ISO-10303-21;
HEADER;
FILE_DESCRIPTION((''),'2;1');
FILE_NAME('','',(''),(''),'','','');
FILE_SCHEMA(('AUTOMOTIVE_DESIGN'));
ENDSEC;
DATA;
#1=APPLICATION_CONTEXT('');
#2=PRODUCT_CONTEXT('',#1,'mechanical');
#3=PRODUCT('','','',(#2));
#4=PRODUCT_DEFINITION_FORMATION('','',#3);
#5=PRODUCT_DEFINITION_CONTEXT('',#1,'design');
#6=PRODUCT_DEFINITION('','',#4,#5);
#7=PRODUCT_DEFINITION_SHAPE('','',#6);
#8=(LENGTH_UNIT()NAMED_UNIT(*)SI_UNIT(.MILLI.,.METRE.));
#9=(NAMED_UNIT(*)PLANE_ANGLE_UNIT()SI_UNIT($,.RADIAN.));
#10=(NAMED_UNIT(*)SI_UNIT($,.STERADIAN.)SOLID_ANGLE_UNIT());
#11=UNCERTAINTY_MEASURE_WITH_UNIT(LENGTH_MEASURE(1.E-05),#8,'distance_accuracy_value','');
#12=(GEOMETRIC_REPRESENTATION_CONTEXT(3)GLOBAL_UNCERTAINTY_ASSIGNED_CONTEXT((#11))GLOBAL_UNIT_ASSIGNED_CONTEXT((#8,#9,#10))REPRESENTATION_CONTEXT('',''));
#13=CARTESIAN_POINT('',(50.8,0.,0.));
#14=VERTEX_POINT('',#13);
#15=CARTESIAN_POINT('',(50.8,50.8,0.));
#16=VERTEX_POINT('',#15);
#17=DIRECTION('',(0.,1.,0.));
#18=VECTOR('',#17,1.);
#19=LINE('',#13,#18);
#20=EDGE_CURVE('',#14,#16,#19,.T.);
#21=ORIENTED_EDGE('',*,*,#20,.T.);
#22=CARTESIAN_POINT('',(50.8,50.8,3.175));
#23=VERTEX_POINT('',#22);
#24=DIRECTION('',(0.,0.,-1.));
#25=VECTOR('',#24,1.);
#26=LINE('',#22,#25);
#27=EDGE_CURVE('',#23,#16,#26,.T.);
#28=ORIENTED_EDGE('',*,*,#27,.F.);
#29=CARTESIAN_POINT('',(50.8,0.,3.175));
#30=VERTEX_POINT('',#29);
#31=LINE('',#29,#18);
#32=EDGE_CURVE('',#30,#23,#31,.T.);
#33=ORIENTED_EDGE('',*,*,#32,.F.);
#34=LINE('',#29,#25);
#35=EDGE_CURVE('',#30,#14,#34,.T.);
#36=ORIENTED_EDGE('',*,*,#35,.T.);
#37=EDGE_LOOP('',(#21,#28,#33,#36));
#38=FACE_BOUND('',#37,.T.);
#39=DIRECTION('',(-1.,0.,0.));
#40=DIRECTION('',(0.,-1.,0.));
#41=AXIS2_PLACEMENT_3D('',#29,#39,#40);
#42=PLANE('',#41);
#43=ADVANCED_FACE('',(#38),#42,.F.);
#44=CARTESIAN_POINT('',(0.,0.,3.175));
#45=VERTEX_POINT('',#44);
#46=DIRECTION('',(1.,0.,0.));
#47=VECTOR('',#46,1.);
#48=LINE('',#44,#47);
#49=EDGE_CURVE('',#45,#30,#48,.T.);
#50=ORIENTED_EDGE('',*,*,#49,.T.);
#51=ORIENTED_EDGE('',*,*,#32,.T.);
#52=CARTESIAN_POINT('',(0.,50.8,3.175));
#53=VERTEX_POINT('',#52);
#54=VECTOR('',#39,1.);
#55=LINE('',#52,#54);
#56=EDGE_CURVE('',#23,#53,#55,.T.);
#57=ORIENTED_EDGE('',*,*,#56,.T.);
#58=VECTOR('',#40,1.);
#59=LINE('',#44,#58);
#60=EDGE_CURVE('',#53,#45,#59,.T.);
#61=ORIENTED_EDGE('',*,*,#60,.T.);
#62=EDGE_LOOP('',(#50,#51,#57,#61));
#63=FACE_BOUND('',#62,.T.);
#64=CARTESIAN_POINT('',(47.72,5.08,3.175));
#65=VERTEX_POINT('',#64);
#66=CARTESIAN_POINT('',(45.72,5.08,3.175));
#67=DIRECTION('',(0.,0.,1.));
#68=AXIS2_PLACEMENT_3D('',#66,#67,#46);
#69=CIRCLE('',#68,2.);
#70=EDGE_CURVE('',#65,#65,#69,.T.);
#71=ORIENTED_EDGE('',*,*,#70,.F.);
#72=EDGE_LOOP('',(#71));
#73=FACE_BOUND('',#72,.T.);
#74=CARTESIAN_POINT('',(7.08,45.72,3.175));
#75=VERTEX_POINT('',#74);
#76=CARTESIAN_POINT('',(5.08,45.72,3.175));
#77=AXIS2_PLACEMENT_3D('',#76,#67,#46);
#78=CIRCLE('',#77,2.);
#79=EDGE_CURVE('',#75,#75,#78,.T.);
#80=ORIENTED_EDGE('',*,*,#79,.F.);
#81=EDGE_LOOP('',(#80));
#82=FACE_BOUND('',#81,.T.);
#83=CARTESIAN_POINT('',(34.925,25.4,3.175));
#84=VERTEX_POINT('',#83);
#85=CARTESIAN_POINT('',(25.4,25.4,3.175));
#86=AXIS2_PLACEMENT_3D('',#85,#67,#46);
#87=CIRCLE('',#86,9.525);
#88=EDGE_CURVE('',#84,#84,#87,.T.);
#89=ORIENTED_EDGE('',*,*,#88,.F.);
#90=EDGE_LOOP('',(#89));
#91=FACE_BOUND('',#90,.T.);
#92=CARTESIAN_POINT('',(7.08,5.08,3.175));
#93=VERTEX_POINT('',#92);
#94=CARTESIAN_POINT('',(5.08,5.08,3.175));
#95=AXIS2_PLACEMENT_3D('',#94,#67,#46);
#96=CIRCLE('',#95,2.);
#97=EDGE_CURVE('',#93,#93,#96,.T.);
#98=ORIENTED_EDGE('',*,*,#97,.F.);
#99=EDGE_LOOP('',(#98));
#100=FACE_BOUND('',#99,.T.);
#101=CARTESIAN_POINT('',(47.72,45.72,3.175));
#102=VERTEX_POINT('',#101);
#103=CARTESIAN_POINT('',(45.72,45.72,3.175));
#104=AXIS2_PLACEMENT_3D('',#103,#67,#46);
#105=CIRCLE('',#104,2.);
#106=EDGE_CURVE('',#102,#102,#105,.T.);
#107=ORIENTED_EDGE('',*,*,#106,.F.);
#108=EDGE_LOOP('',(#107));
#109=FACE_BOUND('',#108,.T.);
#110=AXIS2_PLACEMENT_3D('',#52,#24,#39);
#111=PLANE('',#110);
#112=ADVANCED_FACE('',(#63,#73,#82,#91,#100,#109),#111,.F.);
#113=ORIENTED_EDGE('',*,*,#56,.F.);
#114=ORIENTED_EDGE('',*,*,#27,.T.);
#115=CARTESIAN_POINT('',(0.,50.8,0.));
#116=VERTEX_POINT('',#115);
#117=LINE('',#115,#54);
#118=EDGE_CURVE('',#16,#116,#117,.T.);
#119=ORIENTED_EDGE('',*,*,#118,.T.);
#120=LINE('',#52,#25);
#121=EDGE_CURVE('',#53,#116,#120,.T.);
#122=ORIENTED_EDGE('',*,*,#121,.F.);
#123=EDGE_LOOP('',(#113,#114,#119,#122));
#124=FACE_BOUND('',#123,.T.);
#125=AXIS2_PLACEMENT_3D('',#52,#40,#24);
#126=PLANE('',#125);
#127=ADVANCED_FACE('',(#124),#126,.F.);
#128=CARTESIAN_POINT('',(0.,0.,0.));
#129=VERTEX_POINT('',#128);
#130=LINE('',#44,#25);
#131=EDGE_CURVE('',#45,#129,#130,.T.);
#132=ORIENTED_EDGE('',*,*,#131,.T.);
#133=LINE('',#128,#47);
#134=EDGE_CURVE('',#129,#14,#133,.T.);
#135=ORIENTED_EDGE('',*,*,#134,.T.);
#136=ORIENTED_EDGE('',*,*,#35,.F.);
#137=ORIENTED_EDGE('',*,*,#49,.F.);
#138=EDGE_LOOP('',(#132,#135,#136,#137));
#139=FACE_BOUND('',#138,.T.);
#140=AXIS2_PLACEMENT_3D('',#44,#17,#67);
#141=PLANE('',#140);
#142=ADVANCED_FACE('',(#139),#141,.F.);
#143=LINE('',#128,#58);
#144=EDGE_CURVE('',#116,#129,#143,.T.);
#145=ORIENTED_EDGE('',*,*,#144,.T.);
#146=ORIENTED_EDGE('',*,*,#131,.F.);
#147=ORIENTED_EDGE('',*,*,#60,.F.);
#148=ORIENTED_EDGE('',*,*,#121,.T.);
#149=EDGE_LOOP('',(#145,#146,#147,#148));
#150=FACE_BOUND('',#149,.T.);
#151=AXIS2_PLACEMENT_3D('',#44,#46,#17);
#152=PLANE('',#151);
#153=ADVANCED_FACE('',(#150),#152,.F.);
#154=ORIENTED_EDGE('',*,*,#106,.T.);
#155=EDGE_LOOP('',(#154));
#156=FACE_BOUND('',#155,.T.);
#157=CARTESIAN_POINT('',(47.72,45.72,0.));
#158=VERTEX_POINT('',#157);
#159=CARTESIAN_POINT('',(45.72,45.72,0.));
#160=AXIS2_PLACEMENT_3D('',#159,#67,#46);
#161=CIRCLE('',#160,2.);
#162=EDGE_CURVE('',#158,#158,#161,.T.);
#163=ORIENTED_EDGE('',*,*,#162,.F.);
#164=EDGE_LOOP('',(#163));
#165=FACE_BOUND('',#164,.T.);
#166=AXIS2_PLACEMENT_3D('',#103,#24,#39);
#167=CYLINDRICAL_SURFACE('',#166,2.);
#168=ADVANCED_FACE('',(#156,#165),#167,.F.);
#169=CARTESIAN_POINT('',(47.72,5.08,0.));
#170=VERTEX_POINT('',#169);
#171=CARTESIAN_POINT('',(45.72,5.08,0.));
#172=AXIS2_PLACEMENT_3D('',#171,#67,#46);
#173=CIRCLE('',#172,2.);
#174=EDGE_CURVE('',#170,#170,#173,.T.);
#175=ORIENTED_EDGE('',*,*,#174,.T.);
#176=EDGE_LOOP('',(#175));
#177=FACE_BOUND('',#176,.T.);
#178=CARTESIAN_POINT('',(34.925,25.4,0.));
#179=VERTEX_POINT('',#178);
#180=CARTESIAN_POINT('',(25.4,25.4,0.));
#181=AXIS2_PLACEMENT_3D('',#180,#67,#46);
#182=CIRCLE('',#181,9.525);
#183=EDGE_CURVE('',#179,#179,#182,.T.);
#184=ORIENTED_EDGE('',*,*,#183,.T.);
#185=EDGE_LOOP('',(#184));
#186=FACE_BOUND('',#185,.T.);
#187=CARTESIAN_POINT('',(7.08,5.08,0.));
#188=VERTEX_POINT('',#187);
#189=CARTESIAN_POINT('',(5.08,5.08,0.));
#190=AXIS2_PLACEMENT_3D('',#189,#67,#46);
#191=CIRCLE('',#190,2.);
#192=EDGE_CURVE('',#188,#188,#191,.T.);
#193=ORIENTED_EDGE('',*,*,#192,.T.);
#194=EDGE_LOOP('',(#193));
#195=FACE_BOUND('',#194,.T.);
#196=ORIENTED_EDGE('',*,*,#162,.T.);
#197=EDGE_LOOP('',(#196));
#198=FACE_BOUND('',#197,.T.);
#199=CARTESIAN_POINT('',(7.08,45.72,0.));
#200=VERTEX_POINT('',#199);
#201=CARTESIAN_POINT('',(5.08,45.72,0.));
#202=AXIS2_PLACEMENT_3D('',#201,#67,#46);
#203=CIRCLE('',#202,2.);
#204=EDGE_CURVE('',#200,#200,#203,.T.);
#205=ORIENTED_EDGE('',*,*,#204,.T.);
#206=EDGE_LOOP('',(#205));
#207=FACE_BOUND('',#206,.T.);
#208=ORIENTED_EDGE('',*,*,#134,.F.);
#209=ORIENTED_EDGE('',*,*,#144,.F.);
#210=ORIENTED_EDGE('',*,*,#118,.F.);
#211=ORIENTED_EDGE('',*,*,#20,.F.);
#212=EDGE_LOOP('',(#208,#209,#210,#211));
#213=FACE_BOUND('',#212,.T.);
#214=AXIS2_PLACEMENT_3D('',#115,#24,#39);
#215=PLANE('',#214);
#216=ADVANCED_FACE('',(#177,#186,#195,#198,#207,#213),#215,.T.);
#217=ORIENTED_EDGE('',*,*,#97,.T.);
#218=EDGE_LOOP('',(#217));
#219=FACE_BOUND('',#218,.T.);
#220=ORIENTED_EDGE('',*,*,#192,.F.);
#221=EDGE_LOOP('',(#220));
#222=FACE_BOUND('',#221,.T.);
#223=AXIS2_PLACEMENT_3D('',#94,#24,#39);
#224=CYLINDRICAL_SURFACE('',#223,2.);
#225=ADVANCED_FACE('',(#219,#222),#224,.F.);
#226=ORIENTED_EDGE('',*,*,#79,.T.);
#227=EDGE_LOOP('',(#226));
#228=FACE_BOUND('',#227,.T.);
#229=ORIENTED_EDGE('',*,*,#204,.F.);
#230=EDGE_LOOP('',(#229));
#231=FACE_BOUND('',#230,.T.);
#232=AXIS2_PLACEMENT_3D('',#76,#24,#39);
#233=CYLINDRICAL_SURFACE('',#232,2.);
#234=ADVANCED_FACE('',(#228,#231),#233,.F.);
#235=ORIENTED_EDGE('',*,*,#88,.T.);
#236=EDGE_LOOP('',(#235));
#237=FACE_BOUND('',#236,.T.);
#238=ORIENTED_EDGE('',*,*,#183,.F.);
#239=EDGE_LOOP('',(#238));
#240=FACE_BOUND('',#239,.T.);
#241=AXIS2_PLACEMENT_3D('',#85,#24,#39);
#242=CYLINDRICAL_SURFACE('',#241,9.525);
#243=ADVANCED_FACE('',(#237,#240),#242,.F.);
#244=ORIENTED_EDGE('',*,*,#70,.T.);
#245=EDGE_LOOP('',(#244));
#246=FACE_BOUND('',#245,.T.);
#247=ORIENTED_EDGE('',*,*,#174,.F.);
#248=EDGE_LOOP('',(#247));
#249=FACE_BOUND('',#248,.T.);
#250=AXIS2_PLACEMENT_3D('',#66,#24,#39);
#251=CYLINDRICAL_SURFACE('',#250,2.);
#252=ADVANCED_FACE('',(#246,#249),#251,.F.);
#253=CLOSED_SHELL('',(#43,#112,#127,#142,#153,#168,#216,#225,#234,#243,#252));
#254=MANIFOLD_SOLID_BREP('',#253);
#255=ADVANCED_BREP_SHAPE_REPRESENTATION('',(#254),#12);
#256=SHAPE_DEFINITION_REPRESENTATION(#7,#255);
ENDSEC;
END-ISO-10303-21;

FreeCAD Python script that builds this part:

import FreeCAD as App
import Part
import Sketcher

V = App.Vector
Q = App.Units.Quantity

doc = App.newDocument("Part")
body = doc.addObject("PartDesign::Body", "Body")

sketch1 = body.newObject("Sketcher::SketchObject", "Sketch")
sketch1.AttachmentSupport = (doc.getObject("XY_Plane"), [""])
sketch1.MapMode = "FlatFace"
sketch1.addGeometry([
    Part.LineSegment(V(0, 50.8, 0), V(0, 0, 0)),
    Part.LineSegment(V(0, 0, 0), V(50.8, 0, 0)),
    Part.LineSegment(V(50.8, 0, 0), V(50.8, 50.8, 0)),
    Part.LineSegment(V(50.8, 50.8, 0), V(0, 50.8, 0)),
    Part.Circle(V(5.1, 5.1, 0), V(0, 0, 1), 2),
    Part.Circle(V(45.7, 5.1, 0), V(0, 0, 1), 2),
    Part.Circle(V(5.1, 45.7, 0), V(0, 0, 1), 2),
    Part.Circle(V(25.4, 25.4, 0), V(0, 0, 1), 9.5),
    Part.Circle(V(45.7, 45.7, 0), V(0, 0, 1), 2),
], False)
sketch1.addConstraint([
    Sketcher.Constraint("Coincident", 0, 2, 1, 1),
    Sketcher.Constraint("Coincident", 1, 2, 2, 1),
    Sketcher.Constraint("Coincident", 2, 2, 3, 1),
    Sketcher.Constraint("Coincident", 3, 2, 0, 1),
    Sketcher.Constraint("Vertical", 0),
    Sketcher.Constraint("Horizontal", 1),
    Sketcher.Constraint("Vertical", 2),
    Sketcher.Constraint("Horizontal", 3),
    Sketcher.Constraint("Coincident", 0, 2, -1, 1),
    Sketcher.Constraint("Equal", 4, 5),
    Sketcher.Constraint("Equal", 5, 6),
    Sketcher.Constraint("Equal", 6, 8),
    Sketcher.Constraint("Horizontal", 4, 3, 5, 3),
    Sketcher.Constraint("Horizontal", 6, 3, 8, 3),
    Sketcher.Constraint("Vertical", 4, 3, 6, 3),
    Sketcher.Constraint("Vertical", 5, 3, 8, 3),
    Sketcher.Constraint("Equal", 3, 0),
    Sketcher.Constraint("Diameter", 7, Q("0.75 in")),
    Sketcher.Constraint("DistanceX", 1, 1, 1, 2, Q("2 in")),
    Sketcher.Constraint("DistanceX", -1, 1, 7, 3, Q("1 in")),
    Sketcher.Constraint("DistanceY", -1, 1, 7, 3, Q("1 in")),
    Sketcher.Constraint("DistanceX", -1, 1, 4, 3, Q("0.2 in")),
    Sketcher.Constraint("DistanceY", -1, 1, 4, 3, Q("0.2 in")),
    Sketcher.Constraint("DistanceX", -1, 1, 5, 3, Q("1.8 in")),
    Sketcher.Constraint("DistanceY", -1, 1, 6, 3, Q("1.8 in")),
    Sketcher.Constraint("Diameter", 4, Q("4 mm")),
])
pad1 = body.newObject("PartDesign::Pad", "Pad")
pad1.Profile = sketch1
pad1.Length = Q("0.125 in")

doc.recompute()
